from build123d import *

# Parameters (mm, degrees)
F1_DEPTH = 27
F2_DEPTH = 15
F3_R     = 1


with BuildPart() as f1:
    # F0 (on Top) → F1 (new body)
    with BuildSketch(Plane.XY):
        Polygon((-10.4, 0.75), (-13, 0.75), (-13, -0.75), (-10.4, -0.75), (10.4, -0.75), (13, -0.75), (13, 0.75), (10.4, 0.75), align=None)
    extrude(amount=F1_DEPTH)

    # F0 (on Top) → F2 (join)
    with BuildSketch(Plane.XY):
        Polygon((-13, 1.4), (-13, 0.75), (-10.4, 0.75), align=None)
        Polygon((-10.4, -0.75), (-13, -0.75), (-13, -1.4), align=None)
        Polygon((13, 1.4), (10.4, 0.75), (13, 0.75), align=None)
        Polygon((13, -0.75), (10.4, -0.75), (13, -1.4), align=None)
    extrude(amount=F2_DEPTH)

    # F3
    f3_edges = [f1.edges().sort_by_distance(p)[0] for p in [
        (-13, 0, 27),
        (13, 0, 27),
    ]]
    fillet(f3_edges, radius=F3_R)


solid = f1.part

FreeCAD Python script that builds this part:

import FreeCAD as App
import Part
import Sketcher
Q = App.Units.Quantity


def edges_at(feature, points):
    """Names of the edges that pass closest to the given points."""
    edges = feature.Shape.Edges
    near = lambda p: min(range(len(edges)), key=lambda i: edges[i].distToShape(Part.Vertex(*p))[0])
    return sorted({f"Edge{near(p) + 1}" for p in points})


def add_polygon(sketch, points):
    """Adds a closed chain of lines whose ends are joined by coincident constraints."""
    first, n = sketch.GeometryCount, len(points)
    for a, b in zip(points, points[1:] + points[:1]):
        sketch.addGeometry(Part.LineSegment(App.Vector(*a, 0), App.Vector(*b, 0)), False)
    for i in range(n):
        sketch.addConstraint(Sketcher.Constraint("Coincident", first + i, 2, first + (i + 1) % n, 1))

doc = App.newDocument("Part")
body = doc.addObject("PartDesign::Body", "Body")

sketch1 = body.newObject("Sketcher::SketchObject", "Sketch")
sketch1.AttachmentSupport = (doc.getObject("XY_Plane"), [""])
sketch1.MapMode = "FlatFace"
add_polygon(sketch1, [(-13, 0.8), (-13, -0.8), (13, -0.8), (13, 0.8)])
sketch1.addConstraint(Sketcher.Constraint("Vertical", 0))
sketch1.addConstraint(Sketcher.Constraint("Horizontal", 1))
sketch1.addConstraint(Sketcher.Constraint("Vertical", 2))
sketch1.addConstraint(Sketcher.Constraint("Horizontal", 3))
sketch1.addConstraint(Sketcher.Constraint("Symmetric", 0, 2, 2, 2, -1, 1))
sketch1.addConstraint(Sketcher.Constraint("DistanceX", 1, 1, 1, 2, Q("26 mm")))
sketch1.addConstraint(Sketcher.Constraint("DistanceY", 0, 2, 0, 1, Q("1.5 mm")))
pad1 = body.newObject("PartDesign::Pad", "Pad")
pad1.Profile = sketch1
pad1.Length = 27

sketch2 = body.newObject("Sketcher::SketchObject", "Sketch001")
sketch2.AttachmentSupport = (doc.getObject("XY_Plane"), [""])
sketch2.MapMode = "FlatFace"
add_polygon(sketch2, [(-13, 1.4), (-13, 0.8), (-10.4, 0.8)])
add_polygon(sketch2, [(-10.4, -0.8), (-13, -0.8), (-13, -1.4)])
add_polygon(sketch2, [(13, 1.4), (10.4, 0.8), (13, 0.8)])
add_polygon(sketch2, [(13, -0.8), (10.4, -0.8), (13, -1.4)])
sketch2.addConstraint(Sketcher.Constraint("Vertical", 0))
sketch2.addConstraint(Sketcher.Constraint("Horizontal", 1))
sketch2.addConstraint(Sketcher.Constraint("Horizontal", 3))
sketch2.addConstraint(Sketcher.Constraint("Vertical", 4))
sketch2.addConstraint(Sketcher.Constraint("Horizontal", 7))
sketch2.addConstraint(Sketcher.Constraint("Vertical", 8))
sketch2.addConstraint(Sketcher.Constraint("Horizontal", 9))
sketch2.addConstraint(Sketcher.Constraint("Vertical", 11))
sketch2.addConstraint(Sketcher.Constraint("Symmetric", 5, 2, 6, 2, -1, 1))
sketch2.addConstraint(Sketcher.Constraint("Symmetric", 4, 2, 8, 2, -1, 1))
sketch2.addConstraint(Sketcher.Constraint("Symmetric", 1, 2, 9, 2, -1, 1))
sketch2.addConstraint(Sketcher.Constraint("Symmetric", 2, 2, 10, 2, -1, 1))
sketch2.addConstraint(Sketcher.Constraint("Symmetric", 1, 2, 6, 2, -2))
sketch2.addConstraint(Sketcher.Constraint("Symmetric", 2, 2, 8, 2, -2))
sketch2.addConstraint(Sketcher.Constraint("DistanceX", 1, 1, 1, 2, Q("2.6 mm")))
sketch2.addConstraint(Sketcher.Constraint("DistanceX", 0, 2, -1, 1, Q("13 mm")))
sketch2.addConstraint(Sketcher.Constraint("DistanceY", 0, 2, 0, 1, Q("0.65 mm")))
sketch2.addConstraint(Sketcher.Constraint("DistanceY", -1, 1, 2, 2, Q("1.4 mm")))
pad2 = body.newObject("PartDesign::Pad", "Pad001")
pad2.Profile = sketch2
pad2.Length = 15
doc.recompute()

fillet = body.newObject("PartDesign::Fillet", "Fillet")
fillet.Base = (pad2, edges_at(pad2, [(-13, 0, 27), (13, 0, 27)]))
fillet.Radius = 1

doc.recompute()
